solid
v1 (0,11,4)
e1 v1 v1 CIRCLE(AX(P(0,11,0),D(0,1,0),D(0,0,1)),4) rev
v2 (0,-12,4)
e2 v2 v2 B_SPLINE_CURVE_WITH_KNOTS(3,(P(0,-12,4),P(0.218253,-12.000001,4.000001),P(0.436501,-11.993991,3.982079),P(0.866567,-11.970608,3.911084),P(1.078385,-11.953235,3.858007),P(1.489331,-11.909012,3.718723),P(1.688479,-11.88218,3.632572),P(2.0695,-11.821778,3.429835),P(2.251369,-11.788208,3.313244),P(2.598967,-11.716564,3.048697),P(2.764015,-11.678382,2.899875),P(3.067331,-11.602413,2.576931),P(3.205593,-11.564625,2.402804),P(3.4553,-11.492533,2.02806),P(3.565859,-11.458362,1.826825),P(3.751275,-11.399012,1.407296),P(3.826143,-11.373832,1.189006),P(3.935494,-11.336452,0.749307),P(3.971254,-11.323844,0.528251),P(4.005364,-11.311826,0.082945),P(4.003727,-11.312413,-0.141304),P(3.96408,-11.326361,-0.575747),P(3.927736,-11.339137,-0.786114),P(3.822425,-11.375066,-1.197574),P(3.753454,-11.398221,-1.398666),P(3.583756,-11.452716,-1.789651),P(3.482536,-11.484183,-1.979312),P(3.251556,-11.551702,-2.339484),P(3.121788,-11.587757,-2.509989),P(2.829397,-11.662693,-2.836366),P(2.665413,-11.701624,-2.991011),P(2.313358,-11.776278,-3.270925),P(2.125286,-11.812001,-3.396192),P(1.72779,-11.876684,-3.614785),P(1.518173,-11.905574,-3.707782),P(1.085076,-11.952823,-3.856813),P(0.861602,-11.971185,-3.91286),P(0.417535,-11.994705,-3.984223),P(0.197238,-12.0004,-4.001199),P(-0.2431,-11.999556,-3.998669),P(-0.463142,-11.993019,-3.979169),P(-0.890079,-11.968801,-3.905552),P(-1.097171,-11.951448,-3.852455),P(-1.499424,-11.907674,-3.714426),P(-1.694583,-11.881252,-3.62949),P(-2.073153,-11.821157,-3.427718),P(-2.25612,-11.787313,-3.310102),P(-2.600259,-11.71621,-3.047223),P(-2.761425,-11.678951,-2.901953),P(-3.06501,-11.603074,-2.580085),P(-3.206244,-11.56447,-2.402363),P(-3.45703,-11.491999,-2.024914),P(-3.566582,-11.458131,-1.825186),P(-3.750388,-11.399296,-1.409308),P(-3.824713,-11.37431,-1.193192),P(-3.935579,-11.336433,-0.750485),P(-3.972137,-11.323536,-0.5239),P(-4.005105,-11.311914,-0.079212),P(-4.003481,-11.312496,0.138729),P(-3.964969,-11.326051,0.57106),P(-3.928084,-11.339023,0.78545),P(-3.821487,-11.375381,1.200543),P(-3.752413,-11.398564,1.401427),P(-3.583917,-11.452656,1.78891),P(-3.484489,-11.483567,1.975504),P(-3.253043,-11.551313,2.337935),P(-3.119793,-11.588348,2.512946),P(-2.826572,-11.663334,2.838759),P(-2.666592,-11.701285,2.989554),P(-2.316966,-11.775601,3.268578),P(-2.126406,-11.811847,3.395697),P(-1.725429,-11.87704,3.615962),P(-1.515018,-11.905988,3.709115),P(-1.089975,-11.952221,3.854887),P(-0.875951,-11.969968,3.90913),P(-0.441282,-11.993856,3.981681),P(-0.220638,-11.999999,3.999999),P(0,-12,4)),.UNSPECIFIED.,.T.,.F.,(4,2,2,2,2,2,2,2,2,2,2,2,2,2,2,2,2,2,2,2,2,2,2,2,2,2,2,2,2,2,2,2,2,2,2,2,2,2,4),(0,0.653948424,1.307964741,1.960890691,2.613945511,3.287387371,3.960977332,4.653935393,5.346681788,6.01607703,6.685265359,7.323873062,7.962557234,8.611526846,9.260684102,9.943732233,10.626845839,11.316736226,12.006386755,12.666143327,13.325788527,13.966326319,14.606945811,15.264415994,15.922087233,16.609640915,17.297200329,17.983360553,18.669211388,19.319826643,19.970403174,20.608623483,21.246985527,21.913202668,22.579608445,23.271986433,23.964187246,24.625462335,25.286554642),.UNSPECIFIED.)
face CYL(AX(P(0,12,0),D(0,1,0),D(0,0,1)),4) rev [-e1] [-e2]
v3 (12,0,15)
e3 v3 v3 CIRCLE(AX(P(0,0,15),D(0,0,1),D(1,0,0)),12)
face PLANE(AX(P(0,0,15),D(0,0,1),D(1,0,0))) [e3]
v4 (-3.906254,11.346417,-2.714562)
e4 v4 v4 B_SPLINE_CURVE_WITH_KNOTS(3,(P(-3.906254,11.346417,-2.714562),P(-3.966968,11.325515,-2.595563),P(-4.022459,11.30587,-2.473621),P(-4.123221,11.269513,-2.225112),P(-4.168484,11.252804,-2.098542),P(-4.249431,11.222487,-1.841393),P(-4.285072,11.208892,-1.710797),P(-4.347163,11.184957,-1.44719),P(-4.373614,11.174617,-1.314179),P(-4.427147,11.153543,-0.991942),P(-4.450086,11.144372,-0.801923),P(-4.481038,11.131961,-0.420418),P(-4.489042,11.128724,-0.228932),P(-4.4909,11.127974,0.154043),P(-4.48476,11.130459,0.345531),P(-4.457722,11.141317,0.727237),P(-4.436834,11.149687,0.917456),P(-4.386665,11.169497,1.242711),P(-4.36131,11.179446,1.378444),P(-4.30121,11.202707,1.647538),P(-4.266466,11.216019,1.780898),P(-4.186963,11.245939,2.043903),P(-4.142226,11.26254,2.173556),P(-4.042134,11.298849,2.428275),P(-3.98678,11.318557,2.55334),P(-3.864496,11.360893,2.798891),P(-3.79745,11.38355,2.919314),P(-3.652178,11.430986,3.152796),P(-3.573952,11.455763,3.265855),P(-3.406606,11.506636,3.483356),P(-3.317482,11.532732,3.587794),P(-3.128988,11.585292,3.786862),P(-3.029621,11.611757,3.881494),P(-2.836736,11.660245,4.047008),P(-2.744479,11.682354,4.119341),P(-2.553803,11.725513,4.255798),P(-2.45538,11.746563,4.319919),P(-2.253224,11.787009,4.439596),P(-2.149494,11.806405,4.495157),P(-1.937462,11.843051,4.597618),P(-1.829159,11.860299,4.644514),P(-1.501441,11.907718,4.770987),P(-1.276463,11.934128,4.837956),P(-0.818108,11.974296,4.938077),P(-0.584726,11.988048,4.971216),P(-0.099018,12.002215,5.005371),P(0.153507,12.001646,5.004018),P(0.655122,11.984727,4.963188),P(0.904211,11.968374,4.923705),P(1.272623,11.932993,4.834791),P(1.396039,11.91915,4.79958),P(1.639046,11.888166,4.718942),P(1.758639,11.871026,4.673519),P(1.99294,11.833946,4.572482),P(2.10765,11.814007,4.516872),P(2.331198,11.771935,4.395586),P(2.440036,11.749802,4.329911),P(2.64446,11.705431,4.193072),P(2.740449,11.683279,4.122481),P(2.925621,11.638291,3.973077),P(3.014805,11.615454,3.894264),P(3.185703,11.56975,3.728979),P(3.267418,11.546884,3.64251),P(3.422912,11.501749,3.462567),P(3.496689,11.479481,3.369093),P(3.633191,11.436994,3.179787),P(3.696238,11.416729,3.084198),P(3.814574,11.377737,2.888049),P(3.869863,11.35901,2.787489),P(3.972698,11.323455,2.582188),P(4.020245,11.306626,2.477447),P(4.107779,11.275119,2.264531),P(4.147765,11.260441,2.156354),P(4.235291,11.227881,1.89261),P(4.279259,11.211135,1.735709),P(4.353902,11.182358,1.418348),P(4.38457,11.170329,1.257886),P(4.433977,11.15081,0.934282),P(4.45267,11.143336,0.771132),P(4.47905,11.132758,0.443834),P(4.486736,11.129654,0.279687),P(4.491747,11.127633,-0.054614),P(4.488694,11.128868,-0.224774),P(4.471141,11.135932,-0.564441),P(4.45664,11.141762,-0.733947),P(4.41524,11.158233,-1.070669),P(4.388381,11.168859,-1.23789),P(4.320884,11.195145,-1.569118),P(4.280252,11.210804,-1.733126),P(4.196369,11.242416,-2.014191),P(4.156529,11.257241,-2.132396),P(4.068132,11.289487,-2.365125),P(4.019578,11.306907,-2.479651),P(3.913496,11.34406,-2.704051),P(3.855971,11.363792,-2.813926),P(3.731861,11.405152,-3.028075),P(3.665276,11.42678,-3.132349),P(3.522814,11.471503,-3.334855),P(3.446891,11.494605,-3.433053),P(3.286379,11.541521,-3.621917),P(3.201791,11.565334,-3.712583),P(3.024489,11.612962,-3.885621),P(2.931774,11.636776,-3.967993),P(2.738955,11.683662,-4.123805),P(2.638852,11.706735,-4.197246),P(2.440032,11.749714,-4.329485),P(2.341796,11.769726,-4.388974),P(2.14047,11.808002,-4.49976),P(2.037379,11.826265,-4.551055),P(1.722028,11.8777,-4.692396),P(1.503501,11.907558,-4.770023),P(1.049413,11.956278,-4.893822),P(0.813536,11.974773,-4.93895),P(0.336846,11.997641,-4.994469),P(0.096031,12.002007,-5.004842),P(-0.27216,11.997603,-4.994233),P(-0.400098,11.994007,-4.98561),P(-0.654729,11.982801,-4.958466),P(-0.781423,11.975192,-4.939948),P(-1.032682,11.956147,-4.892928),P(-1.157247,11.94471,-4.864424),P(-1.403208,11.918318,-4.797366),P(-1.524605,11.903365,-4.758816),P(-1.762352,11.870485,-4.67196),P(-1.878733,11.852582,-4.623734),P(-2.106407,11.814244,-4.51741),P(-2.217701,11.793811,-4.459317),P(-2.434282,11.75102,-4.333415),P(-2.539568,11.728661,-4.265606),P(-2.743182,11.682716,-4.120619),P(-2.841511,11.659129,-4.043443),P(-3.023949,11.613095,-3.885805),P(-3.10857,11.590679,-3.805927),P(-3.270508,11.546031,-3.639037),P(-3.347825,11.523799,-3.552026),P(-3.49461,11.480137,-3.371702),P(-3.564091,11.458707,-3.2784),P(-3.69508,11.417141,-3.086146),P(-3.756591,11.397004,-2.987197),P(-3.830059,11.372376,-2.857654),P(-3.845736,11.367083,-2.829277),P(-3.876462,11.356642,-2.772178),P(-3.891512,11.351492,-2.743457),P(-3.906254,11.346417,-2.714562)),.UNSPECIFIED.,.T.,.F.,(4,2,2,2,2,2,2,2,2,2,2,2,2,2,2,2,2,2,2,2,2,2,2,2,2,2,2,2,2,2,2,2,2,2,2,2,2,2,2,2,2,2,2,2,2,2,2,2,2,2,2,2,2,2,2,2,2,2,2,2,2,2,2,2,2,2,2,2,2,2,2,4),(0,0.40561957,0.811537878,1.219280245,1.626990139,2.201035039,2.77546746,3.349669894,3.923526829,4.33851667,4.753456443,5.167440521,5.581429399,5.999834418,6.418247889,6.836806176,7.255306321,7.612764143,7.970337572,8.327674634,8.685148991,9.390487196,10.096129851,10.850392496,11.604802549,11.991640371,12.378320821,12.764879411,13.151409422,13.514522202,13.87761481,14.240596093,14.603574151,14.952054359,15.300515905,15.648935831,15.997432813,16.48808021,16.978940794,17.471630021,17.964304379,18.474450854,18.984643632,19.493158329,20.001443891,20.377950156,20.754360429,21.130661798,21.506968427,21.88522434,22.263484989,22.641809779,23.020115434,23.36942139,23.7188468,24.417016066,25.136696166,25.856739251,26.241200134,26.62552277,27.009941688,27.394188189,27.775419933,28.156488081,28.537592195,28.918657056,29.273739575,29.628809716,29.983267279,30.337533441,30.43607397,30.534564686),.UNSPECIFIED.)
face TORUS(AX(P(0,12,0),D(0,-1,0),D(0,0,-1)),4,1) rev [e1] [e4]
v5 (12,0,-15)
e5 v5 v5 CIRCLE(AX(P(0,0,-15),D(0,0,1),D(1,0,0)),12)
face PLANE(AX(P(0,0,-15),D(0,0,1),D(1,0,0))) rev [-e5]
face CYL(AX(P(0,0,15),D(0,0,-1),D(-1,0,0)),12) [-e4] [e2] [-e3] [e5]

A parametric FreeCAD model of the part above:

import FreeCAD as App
import Part
import Sketcher

V = App.Vector
Q = App.Units.Quantity

doc = App.newDocument("Part")
body = doc.addObject("PartDesign::Body", "Body")

# Sketch on XY plane
sketch1 = doc.addObject("Sketcher::SketchObject", "Sketch")
body.addObject(sketch1)
sketch1.AttachmentSupport = (doc.XY_Plane, [""])
sketch1.MapMode = "FlatFace"
sketch1.addGeometry(Part.Circle(V(0, 0, 0), V(0, 0, 1), 12), False)
sketch1.addConstraint(Sketcher.Constraint("Coincident", 0, 3, -1, 1))
sketch1.addConstraint(Sketcher.Constraint("Diameter", 0, Q("24 mm")))
pad1 = doc.addObject("PartDesign::Pad", "Pad")
body.addObject(pad1)
pad1.Profile = sketch1
pad1.Length = 30
pad1.Midplane = True

# Sketch on XZ plane
sketch2 = doc.addObject("Sketcher::SketchObject", "Sketch001")
body.addObject(sketch2)
sketch2.AttachmentSupport = (doc.XZ_Plane, [""])
sketch2.MapMode = "FlatFace"
sketch2.AttachmentOffset = App.Placement(V(0, 0, -12), App.Rotation())
sketch2.addGeometry(Part.Circle(V(0, 0, 0), V(0, 0, 1), 4), False)
sketch2.addConstraint(Sketcher.Constraint("Coincident", 0, 3, -1, 1))
sketch2.addConstraint(Sketcher.Constraint("Diameter", 0, Q("8 mm")))
doc.recompute()
hole = doc.addObject("PartDesign::Hole", "Hole")
body.addObject(hole)
hole.Profile = sketch2
hole.ThreadType = "None"
hole.Diameter = 8
hole.DepthType = "ThroughAll"
hole.Reversed = True

# Sketch on YZ plane
sketch3 = doc.addObject("Sketcher::SketchObject", "Sketch002")
body.addObject(sketch3)
sketch3.AttachmentSupport = (doc.YZ_Plane, [""])
sketch3.MapMode = "FlatFace"
sketch3.addGeometry(Part.Circle(V(12, 4, 0), V(0, 0, 1), 1), False)
sketch3.addConstraint(Sketcher.Constraint("Diameter", 0, Q("2 mm")))
sketch3.addConstraint(Sketcher.Constraint("DistanceX", -1, 1, 0, 3, Q("12 mm")))
sketch3.addConstraint(Sketcher.Constraint("DistanceY", -1, 1, 0, 3, Q("4 mm")))
groove = doc.addObject("PartDesign::Groove", "Groove")
body.addObject(groove)
groove.Profile = sketch3
groove.ReferenceAxis = (sketch3, ["H_Axis"])
groove.Angle = 360

doc.recompute()
